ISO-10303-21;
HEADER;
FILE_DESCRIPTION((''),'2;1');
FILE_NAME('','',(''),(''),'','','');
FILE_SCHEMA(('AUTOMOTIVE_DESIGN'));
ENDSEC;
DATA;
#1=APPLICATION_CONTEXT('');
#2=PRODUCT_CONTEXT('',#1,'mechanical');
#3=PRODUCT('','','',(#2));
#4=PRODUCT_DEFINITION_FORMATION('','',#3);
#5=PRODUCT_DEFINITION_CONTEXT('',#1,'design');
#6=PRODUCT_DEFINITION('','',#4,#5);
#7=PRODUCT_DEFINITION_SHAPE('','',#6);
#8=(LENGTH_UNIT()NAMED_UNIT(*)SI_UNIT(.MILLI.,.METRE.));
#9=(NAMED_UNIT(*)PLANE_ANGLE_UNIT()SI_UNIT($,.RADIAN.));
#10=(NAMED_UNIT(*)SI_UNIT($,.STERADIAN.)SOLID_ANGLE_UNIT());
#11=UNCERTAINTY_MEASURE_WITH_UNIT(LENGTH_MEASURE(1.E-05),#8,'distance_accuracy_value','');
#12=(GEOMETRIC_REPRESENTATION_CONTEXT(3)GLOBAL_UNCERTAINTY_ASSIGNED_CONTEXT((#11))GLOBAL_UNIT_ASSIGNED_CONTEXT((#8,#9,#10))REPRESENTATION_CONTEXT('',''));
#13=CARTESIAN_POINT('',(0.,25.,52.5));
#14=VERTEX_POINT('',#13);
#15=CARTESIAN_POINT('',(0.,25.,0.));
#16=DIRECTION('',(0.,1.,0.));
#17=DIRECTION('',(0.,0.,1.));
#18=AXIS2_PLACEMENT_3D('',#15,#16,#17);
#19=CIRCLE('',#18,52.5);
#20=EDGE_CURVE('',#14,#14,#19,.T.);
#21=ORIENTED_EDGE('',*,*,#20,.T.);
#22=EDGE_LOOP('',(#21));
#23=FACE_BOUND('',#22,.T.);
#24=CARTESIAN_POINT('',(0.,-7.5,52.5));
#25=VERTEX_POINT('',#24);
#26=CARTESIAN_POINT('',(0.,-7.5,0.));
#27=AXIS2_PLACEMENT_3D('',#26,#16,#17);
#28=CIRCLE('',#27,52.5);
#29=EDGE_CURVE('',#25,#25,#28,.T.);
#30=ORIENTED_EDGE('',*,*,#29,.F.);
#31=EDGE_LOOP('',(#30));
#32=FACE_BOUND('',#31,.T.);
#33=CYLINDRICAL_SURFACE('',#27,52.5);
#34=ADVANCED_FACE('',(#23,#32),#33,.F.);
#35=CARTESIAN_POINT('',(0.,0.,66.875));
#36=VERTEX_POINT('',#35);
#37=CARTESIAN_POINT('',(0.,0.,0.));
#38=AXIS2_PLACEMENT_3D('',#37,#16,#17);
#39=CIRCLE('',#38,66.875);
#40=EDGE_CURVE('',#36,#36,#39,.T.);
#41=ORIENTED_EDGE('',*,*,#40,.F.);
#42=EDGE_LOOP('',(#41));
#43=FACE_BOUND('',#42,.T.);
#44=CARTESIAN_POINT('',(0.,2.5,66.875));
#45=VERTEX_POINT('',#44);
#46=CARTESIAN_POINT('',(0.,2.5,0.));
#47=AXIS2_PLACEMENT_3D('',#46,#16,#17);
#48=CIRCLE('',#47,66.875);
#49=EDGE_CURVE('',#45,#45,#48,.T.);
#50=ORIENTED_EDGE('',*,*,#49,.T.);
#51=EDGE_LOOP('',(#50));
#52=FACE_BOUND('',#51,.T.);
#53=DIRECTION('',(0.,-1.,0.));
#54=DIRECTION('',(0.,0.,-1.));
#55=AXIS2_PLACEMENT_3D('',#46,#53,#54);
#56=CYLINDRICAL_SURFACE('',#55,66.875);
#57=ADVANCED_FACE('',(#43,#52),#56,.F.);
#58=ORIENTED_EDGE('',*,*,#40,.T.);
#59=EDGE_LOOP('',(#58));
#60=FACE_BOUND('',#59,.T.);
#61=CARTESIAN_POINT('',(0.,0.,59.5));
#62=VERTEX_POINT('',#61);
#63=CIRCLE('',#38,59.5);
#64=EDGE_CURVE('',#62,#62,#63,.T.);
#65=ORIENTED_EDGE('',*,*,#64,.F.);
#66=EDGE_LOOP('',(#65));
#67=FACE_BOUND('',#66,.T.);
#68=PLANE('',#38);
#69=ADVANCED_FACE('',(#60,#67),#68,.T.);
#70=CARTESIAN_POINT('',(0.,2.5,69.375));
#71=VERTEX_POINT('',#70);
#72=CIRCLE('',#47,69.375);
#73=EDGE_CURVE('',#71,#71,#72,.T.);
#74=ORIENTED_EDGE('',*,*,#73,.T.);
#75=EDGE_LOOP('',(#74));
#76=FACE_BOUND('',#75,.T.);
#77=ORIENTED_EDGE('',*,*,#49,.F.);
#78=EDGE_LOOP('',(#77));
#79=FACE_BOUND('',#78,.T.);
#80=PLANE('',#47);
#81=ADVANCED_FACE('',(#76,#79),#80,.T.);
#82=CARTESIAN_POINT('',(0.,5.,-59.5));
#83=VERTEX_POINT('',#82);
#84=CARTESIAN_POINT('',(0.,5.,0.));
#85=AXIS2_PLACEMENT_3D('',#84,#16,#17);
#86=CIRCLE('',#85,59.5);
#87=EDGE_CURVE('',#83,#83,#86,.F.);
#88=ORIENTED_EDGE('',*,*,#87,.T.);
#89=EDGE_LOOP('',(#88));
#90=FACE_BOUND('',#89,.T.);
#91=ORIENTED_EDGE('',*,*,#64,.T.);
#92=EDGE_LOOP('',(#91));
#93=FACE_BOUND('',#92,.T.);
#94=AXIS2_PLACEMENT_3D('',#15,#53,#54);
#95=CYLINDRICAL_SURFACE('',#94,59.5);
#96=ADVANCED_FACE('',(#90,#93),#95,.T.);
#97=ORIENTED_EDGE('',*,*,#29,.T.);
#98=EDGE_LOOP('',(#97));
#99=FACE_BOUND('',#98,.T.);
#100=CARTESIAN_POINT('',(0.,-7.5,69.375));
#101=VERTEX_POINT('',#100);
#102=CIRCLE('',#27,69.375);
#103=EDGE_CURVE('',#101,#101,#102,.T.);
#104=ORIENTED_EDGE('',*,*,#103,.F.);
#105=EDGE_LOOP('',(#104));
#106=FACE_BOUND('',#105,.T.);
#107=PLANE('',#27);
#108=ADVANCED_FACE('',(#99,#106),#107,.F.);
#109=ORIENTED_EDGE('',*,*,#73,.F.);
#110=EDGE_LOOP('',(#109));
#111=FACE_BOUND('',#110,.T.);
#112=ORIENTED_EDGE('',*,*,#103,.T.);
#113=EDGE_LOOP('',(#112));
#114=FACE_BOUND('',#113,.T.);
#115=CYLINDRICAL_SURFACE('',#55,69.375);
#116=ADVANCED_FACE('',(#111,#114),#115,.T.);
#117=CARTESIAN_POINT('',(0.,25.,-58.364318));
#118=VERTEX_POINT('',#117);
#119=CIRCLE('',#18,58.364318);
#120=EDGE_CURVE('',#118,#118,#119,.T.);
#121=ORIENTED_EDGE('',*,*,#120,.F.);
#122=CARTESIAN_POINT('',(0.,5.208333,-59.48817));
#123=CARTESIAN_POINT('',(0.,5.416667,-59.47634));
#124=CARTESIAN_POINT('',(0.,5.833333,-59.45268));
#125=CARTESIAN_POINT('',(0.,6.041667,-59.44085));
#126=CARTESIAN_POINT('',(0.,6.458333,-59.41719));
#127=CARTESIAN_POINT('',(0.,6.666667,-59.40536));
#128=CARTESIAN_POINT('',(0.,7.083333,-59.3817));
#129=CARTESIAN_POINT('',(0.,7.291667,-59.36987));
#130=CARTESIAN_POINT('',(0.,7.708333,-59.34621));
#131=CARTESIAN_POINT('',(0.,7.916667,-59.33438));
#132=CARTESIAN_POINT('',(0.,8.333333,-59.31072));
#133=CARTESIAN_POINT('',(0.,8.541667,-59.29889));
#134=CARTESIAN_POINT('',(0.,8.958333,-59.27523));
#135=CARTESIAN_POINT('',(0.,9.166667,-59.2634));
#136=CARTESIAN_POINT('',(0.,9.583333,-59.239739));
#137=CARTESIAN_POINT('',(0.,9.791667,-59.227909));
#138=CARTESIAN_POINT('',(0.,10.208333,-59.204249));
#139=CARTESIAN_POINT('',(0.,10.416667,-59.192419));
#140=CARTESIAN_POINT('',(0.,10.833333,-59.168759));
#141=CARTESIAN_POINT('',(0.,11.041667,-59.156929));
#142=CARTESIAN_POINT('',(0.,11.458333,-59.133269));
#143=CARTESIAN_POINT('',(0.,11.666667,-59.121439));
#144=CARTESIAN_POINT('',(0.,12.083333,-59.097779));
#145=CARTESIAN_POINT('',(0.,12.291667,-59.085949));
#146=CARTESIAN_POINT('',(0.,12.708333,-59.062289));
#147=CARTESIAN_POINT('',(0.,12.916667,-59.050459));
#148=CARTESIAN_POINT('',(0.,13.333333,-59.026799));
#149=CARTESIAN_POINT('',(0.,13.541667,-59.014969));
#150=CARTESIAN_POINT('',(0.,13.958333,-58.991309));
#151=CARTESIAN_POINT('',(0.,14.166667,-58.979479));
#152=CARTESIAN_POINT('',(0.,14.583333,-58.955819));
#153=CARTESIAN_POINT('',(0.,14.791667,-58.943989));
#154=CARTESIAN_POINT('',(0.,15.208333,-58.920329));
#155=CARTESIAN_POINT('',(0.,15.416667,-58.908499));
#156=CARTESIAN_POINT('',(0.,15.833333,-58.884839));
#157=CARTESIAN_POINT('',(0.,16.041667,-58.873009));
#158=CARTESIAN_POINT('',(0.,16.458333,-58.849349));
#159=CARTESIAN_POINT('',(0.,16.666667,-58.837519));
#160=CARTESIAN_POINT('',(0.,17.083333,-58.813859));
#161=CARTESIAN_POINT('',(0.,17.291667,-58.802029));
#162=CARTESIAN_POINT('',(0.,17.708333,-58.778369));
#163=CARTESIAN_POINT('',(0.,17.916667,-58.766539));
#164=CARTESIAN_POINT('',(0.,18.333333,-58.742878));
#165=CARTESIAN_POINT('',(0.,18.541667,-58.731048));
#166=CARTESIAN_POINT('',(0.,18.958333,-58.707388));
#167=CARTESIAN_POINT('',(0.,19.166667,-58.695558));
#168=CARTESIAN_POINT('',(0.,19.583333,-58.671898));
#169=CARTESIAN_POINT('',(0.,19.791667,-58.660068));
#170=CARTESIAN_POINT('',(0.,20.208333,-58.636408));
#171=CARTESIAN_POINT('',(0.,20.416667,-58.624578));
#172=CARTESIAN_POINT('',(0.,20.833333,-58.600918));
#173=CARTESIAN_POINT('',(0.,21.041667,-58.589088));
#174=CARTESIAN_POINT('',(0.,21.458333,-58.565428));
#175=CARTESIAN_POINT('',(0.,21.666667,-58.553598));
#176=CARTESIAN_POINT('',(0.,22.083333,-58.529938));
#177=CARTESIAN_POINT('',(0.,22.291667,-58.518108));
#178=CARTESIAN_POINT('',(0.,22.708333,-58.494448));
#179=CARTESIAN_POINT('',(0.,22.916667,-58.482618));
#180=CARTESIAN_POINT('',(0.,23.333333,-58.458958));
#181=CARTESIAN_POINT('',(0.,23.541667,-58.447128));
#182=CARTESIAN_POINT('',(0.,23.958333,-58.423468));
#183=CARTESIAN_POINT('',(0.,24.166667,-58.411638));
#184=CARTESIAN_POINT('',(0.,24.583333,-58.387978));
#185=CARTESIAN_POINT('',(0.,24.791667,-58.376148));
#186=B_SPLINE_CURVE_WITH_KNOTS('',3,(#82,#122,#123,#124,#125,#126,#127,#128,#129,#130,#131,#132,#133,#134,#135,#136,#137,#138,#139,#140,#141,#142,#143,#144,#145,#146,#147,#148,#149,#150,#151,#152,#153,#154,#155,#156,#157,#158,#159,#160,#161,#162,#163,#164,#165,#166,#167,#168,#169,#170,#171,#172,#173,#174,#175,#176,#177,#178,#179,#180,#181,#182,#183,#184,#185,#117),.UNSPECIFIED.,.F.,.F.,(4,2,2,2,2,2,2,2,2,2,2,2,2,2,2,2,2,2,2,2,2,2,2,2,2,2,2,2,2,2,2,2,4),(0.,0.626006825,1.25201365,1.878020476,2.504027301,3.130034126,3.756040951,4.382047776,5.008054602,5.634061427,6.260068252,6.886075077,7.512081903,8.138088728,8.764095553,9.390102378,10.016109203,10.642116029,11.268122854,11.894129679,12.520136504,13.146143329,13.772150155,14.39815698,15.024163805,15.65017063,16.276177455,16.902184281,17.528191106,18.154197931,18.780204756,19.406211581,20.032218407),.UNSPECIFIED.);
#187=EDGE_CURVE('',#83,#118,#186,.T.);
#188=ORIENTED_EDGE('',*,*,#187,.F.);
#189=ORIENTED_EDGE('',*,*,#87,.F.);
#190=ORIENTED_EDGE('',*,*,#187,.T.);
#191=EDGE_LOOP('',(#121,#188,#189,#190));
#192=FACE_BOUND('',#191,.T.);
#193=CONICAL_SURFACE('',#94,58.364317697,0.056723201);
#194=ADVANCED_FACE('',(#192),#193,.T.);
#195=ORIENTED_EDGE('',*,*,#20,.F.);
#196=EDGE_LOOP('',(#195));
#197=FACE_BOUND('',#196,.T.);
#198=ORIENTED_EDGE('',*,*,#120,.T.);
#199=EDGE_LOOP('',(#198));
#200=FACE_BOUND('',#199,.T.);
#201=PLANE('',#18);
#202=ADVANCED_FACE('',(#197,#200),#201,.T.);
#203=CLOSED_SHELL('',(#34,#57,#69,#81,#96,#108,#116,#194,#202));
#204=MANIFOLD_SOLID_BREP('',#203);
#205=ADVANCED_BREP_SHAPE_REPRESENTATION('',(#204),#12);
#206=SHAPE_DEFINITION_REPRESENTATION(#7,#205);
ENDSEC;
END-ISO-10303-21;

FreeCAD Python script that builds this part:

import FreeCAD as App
import Part
import Sketcher


def edges_at(feature, points):
    """Names of the edges that pass closest to the given points."""
    edges = feature.Shape.Edges
    near = lambda p: min(range(len(edges)), key=lambda i: edges[i].distToShape(Part.Vertex(*p))[0])
    return sorted({f"Edge{near(p) + 1}" for p in points})

doc = App.newDocument("Part")
body = doc.addObject("PartDesign::Body", "Body")

# Sketch on XZ plane
sketch1 = body.newObject("Sketcher::SketchObject", "Sketch")
sketch1.AttachmentSupport = (doc.getObject("XZ_Plane"), [""])
sketch1.MapMode = "FlatFace"
sketch1.addGeometry([
    Part.Circle(App.Vector(0, 0, 0), App.Vector(0, 0, 1), 69),
    Part.Circle(App.Vector(0, 0, 0), App.Vector(0, 0, 1), 67),
], False)
sketch1.addConstraint([
    Sketcher.Constraint("Coincident", 0, 3, -1, 1),
    Sketcher.Constraint("Coincident", 1, 3, -1, 1),
    Sketcher.Constraint("Diameter", 0, 138.75),
    Sketcher.Constraint("Diameter", 1, 133.75),
])
pad1 = body.newObject("PartDesign::Pad", "Pad")
pad1.Profile = sketch1
pad1.Length = 2.5
pad1.Reversed = True

# Sketch on XZ plane
sketch2 = body.newObject("Sketcher::SketchObject", "Sketch001")
sketch2.AttachmentSupport = (doc.getObject("XZ_Plane"), [""])
sketch2.MapMode = "FlatFace"
sketch2.AttachmentOffset = App.Placement(App.Vector(0, 0, 7.5), App.Rotation())
sketch2.addGeometry(Part.Circle(App.Vector(0, 0, 0), App.Vector(0, 0, 1), 69), False)
sketch2.addConstraint([
    Sketcher.Constraint("Coincident", 0, 3, -1, 1),
    Sketcher.Constraint("Diameter", 0, 138.75),
])
pad2 = body.newObject("PartDesign::Pad", "Pad001")
pad2.Profile = sketch2
pad2.Length = 7.5
pad2.Reversed = True

# Sketch on XZ plane
sketch3 = body.newObject("Sketcher::SketchObject", "Sketch002")
sketch3.AttachmentSupport = (doc.getObject("XZ_Plane"), [""])
sketch3.MapMode = "FlatFace"
sketch3.addGeometry(Part.Circle(App.Vector(0, 0, 0), App.Vector(0, 0, 1), 60), False)
sketch3.addConstraint([
    Sketcher.Constraint("Coincident", 0, 3, -1, 1),
    Sketcher.Constraint("Diameter", 0, 119.0),
])
pad3 = body.newObject("PartDesign::Pad", "Pad002")
pad3.Profile = sketch3
pad3.Length = 25
pad3.Reversed = True
doc.recompute()

chamfer = body.newObject("PartDesign::Chamfer", "Chamfer")
chamfer.Base = (pad3, edges_at(pad3, [(0, 25, -59.5)]))
chamfer.ChamferType = "Two distances"
chamfer.Size = 20
chamfer.Size2 = 1.135682

# Sketch on XZ plane
sketch4 = body.newObject("Sketcher::SketchObject", "Sketch003")
sketch4.AttachmentSupport = (doc.getObject("XZ_Plane"), [""])
sketch4.MapMode = "FlatFace"
sketch4.AttachmentOffset = App.Placement(App.Vector(0, 0, -25), App.Rotation())
sketch4.addGeometry(Part.Circle(App.Vector(0, 0, 0), App.Vector(0, 0, 1), 52), False)
sketch4.addConstraint([
    Sketcher.Constraint("Coincident", 0, 3, -1, 1),
    Sketcher.Constraint("Diameter", 0, 105.0),
])
pocket1 = body.newObject("PartDesign::Pocket", "Pocket")
pocket1.Profile = sketch4
pocket1.Type = "ThroughAll"
pocket1.Midplane = True

doc.recompute()
